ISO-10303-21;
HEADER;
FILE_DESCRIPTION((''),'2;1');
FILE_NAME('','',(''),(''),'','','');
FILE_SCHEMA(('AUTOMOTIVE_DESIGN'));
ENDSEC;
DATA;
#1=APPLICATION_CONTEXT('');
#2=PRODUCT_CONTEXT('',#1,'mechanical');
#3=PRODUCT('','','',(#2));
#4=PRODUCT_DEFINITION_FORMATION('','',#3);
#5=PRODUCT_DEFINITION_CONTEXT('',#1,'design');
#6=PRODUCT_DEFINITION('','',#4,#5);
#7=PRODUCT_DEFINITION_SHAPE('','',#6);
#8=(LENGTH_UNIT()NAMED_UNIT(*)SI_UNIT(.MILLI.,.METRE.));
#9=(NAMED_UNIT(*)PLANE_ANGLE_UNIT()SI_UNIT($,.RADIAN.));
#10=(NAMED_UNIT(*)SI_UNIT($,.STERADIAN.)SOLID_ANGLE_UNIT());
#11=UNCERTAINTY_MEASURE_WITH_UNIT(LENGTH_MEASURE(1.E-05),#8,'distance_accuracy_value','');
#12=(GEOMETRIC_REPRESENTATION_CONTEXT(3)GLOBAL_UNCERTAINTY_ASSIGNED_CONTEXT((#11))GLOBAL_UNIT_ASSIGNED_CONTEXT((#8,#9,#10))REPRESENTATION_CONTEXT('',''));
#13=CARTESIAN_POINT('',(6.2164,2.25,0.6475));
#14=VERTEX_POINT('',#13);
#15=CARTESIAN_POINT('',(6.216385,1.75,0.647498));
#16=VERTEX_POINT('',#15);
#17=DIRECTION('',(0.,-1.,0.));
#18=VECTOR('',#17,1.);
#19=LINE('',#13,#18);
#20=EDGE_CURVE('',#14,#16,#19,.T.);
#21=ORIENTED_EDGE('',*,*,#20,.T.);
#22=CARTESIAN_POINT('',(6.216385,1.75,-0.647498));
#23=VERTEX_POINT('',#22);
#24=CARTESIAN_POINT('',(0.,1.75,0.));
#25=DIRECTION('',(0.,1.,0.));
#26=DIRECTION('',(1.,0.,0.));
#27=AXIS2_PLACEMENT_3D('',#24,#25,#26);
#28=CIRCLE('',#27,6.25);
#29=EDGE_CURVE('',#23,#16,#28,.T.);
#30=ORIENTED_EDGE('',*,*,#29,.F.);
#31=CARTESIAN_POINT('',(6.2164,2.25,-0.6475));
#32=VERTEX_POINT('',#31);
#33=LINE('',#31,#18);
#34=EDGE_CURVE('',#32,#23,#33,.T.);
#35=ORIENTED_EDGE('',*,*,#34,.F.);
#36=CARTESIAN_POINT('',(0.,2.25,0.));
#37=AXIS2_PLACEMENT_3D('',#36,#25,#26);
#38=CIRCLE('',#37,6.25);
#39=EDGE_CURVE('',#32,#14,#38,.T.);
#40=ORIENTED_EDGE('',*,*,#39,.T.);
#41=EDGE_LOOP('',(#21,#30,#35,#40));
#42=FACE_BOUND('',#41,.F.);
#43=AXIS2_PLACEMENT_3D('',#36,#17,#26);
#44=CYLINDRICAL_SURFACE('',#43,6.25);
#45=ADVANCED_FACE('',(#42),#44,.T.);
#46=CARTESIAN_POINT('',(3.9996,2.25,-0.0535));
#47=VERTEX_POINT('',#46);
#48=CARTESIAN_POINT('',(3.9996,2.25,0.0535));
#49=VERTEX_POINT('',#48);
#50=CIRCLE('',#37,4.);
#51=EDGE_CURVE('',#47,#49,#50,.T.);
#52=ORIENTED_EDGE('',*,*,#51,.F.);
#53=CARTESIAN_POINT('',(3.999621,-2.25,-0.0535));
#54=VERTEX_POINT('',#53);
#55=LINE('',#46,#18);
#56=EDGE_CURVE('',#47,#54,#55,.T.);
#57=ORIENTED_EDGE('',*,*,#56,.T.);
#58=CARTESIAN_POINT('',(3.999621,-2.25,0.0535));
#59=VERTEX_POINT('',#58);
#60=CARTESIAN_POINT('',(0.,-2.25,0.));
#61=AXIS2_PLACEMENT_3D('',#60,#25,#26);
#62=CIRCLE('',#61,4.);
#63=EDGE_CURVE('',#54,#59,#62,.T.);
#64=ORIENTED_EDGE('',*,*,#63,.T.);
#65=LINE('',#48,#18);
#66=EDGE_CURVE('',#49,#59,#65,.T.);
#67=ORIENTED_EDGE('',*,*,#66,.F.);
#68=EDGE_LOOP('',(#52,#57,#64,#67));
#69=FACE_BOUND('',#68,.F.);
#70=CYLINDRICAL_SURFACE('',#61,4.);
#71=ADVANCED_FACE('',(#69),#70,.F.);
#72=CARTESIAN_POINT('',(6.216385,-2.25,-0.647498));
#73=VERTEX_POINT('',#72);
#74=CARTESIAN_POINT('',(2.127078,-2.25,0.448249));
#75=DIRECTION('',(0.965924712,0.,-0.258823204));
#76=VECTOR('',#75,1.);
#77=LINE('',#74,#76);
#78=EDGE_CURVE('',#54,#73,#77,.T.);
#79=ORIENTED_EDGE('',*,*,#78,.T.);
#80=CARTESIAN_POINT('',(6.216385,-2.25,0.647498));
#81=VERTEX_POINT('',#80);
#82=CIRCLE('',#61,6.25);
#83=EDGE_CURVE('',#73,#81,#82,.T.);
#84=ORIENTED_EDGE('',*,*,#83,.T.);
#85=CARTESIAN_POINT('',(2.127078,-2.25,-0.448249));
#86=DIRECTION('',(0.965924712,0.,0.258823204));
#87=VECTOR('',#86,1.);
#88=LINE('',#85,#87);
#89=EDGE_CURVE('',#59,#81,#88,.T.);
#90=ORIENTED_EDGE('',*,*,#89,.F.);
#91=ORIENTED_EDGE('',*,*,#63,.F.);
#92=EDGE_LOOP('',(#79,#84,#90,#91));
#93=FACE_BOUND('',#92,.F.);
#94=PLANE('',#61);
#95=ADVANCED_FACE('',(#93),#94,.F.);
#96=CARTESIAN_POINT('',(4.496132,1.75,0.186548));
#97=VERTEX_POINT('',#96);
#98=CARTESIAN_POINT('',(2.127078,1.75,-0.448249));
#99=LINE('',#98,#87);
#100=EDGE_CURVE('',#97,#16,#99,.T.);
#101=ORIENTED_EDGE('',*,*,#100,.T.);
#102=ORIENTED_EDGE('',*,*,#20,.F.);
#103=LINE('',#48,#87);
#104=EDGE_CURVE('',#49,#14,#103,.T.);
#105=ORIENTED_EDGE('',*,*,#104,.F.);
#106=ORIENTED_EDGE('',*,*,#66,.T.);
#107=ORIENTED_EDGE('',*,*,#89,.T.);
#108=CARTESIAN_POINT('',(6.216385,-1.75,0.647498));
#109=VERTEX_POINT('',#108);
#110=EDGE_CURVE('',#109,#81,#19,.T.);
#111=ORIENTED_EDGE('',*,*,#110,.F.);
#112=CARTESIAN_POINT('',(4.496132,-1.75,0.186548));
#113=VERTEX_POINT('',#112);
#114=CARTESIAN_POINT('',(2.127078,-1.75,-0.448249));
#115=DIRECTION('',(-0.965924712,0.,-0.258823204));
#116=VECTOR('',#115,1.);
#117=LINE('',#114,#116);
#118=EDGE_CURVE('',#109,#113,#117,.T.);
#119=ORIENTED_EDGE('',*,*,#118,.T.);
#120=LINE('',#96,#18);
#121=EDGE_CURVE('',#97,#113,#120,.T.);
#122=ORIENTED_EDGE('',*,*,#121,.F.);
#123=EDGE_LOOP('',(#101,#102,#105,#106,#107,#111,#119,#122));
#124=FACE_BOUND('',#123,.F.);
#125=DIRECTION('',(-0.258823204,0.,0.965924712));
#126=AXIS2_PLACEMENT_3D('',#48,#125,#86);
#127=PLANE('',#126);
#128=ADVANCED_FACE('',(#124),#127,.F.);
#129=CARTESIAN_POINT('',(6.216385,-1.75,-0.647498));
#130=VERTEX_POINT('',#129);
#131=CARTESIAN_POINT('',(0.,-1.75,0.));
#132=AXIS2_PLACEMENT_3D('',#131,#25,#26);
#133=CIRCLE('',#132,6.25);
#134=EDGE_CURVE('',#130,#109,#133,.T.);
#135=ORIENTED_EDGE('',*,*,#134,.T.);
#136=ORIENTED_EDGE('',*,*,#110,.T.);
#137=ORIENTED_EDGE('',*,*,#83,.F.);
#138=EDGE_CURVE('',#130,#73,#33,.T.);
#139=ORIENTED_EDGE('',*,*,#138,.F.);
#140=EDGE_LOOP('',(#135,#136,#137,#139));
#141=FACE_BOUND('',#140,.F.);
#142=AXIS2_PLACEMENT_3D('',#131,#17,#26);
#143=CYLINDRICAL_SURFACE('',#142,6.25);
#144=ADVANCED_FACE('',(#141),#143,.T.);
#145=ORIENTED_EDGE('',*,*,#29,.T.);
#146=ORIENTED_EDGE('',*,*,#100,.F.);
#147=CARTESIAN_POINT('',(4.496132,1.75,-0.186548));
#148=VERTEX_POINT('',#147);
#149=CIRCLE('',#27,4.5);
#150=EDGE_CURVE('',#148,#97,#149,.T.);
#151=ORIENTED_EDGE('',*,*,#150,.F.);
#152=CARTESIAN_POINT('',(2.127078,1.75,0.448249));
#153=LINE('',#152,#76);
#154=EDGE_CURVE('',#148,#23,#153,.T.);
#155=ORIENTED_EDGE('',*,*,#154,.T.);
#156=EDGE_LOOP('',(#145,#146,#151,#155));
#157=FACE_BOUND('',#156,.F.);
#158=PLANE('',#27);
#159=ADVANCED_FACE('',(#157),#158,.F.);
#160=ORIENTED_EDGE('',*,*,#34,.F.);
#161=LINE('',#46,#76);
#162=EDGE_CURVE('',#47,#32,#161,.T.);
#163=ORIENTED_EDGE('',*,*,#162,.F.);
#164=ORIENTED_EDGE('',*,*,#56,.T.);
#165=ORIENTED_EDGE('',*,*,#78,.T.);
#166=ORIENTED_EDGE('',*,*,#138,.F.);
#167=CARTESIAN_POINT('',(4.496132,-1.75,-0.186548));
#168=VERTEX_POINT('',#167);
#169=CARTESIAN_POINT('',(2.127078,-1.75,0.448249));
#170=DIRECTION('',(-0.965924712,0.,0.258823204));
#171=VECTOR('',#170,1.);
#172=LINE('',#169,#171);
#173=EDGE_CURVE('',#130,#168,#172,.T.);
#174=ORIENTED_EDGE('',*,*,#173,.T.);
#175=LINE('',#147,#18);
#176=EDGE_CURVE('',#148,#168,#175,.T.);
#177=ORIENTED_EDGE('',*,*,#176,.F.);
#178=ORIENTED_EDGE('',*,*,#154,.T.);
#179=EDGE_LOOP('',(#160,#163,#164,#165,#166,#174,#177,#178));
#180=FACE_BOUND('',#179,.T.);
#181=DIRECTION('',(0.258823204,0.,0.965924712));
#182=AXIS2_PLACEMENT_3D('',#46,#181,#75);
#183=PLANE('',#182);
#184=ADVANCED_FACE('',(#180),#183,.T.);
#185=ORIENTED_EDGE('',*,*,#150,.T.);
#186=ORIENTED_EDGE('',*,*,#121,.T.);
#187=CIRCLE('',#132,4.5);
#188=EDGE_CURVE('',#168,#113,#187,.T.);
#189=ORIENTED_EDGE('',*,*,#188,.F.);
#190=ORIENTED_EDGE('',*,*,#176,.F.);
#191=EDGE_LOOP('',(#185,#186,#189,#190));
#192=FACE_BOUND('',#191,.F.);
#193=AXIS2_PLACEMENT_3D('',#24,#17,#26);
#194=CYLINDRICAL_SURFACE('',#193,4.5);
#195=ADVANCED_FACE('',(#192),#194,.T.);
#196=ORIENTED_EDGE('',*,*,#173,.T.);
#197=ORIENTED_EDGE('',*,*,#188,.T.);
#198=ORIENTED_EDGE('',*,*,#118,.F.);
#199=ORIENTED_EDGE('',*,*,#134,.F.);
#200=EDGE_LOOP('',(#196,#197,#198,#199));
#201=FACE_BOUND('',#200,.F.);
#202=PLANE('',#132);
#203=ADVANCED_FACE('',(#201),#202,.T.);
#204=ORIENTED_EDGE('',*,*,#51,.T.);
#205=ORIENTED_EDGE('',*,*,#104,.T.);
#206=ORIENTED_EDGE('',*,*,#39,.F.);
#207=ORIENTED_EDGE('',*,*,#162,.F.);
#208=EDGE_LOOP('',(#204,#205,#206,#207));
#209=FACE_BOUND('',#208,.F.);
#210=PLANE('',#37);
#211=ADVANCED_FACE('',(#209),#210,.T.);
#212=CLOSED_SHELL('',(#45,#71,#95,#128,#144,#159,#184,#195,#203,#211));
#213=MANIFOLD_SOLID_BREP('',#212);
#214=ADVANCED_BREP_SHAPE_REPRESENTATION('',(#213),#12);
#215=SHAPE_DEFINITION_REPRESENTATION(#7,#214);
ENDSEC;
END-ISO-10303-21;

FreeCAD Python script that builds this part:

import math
import FreeCAD as App
import Part
import Sketcher
Q = App.Units.Quantity

doc = App.newDocument("Part")
body = doc.addObject("PartDesign::Body", "Body")

# Sketch on XY plane
sketch1 = doc.addObject("Sketcher::SketchObject", "Sketch")
body.addObject(sketch1)
sketch1.AttachmentSupport = (doc.XY_Plane, [""])
sketch1.MapMode = "FlatFace"
sketch1.addGeometry(Part.LineSegment(App.Vector(4, 2.2, 0), App.Vector(4, -2.2, 0)), False)
sketch1.addGeometry(Part.LineSegment(App.Vector(4, -2.2, 0), App.Vector(6.2, -2.2, 0)), False)
sketch1.addGeometry(Part.LineSegment(App.Vector(6.2, -2.2, 0), App.Vector(6.2, -1.8, 0)), False)
sketch1.addGeometry(Part.LineSegment(App.Vector(6.2, -1.8, 0), App.Vector(4.5, -1.8, 0)), False)
sketch1.addGeometry(Part.LineSegment(App.Vector(4.5, -1.8, 0), App.Vector(4.5, 1.8, 0)), False)
sketch1.addGeometry(Part.LineSegment(App.Vector(4.5, 1.8, 0), App.Vector(6.2, 1.8, 0)), False)
sketch1.addGeometry(Part.LineSegment(App.Vector(6.2, 1.8, 0), App.Vector(6.2, 2.2, 0)), False)
sketch1.addGeometry(Part.LineSegment(App.Vector(6.2, 2.2, 0), App.Vector(4, 2.2, 0)), False)
sketch1.addConstraint(Sketcher.Constraint("Coincident", 0, 2, 1, 1))
sketch1.addConstraint(Sketcher.Constraint("Coincident", 1, 2, 2, 1))
sketch1.addConstraint(Sketcher.Constraint("Coincident", 2, 2, 3, 1))
sketch1.addConstraint(Sketcher.Constraint("Coincident", 3, 2, 4, 1))
sketch1.addConstraint(Sketcher.Constraint("Coincident", 4, 2, 5, 1))
sketch1.addConstraint(Sketcher.Constraint("Coincident", 5, 2, 6, 1))
sketch1.addConstraint(Sketcher.Constraint("Coincident", 6, 2, 7, 1))
sketch1.addConstraint(Sketcher.Constraint("Coincident", 7, 2, 0, 1))
sketch1.addConstraint(Sketcher.Constraint("Vertical", 0))
sketch1.addConstraint(Sketcher.Constraint("Horizontal", 1))
sketch1.addConstraint(Sketcher.Constraint("Vertical", 2))
sketch1.addConstraint(Sketcher.Constraint("Horizontal", 3))
sketch1.addConstraint(Sketcher.Constraint("Vertical", 4))
sketch1.addConstraint(Sketcher.Constraint("Horizontal", 5))
sketch1.addConstraint(Sketcher.Constraint("Vertical", 6))
sketch1.addConstraint(Sketcher.Constraint("Horizontal", 7))
sketch1.addConstraint(Sketcher.Constraint("Symmetric", 2, 2, 5, 2, -1))
sketch1.addConstraint(Sketcher.Constraint("Equal", 2, 6))
sketch1.addConstraint(Sketcher.Constraint("DistanceY", 2, 1, 2, 2, Q("0.5 mm")))
sketch1.addConstraint(Sketcher.Constraint("DistanceY", 4, 1, 4, 2, Q("3.5 mm")))
sketch1.addConstraint(Sketcher.Constraint("DistanceX", 0, 2, 3, 2, Q("0.5 mm")))
sketch1.addConstraint(Sketcher.Constraint("DistanceX", -1, 1, 0, 2, Q("4 mm")))
sketch1.addConstraint(Sketcher.Constraint("DistanceX", 1, 1, 1, 2, Q("2.25 mm")))
revolution = doc.addObject("PartDesign::Revolution", "Revolution")
body.addObject(revolution)
revolution.Profile = sketch1
revolution.ReferenceAxis = (sketch1, ["V_Axis"])
revolution.Angle = 360

# Sketch on XZ plane
sketch2 = doc.addObject("Sketcher::SketchObject", "Sketch001")
body.addObject(sketch2)
sketch2.AttachmentSupport = (doc.XZ_Plane, [""])
sketch2.MapMode = "FlatFace"
sketch2.AttachmentOffset = App.Placement(App.Vector(0, 0, -2.25), App.Rotation())
sketch2.addGeometry(Part.ArcOfCircle(Part.Circle(App.Vector(0, 0, 0), App.Vector(0, 0, 1), 4), math.radians(-0.77), math.radians(0.77)), False)
sketch2.addGeometry(Part.LineSegment(App.Vector(4, 0.05, 0), App.Vector(6.22, 0.65, 0)), False)
sketch2.addGeometry(Part.ArcOfCircle(Part.Circle(App.Vector(0, 0, 0), App.Vector(0, 0, 1), 6.25), math.radians(-5.95), math.radians(5.95)), False)
sketch2.addGeometry(Part.LineSegment(App.Vector(6.22, -0.65, 0), App.Vector(4, -0.05, 0)), False)
sketch2.addConstraint(Sketcher.Constraint("Coincident", 0, 2, 1, 1))
sketch2.addConstraint(Sketcher.Constraint("Coincident", 1, 2, 2, 2))
sketch2.addConstraint(Sketcher.Constraint("Coincident", 2, 1, 3, 1))
sketch2.addConstraint(Sketcher.Constraint("Coincident", 3, 2, 0, 1))
sketch2.addConstraint(Sketcher.Constraint("Coincident", 0, 3, -1, 1))
sketch2.addConstraint(Sketcher.Constraint("Coincident", 2, 3, -1, 1))
sketch2.addConstraint(Sketcher.Constraint("Vertical", 1, 2, 2, 1))
sketch2.addConstraint(Sketcher.Constraint("Vertical", 0, 2, 3, 2))
sketch2.addConstraint(Sketcher.Constraint("Angle", 1, Q("15.0002 deg")))
sketch2.addConstraint(Sketcher.Constraint("Radius", 0, Q("4 mm")))
sketch2.addConstraint(Sketcher.Constraint("Radius", 2, Q("6.25 mm")))
sketch2.addConstraint(Sketcher.Constraint("DistanceX", 0, 2, 1, 2, Q("2.2168 mm")))
pocket1 = doc.addObject("PartDesign::Pocket", "Pocket")
body.addObject(pocket1)
pocket1.Profile = sketch2
pocket1.Type = "ThroughAll"
pocket1.Reversed = True

doc.recompute()
